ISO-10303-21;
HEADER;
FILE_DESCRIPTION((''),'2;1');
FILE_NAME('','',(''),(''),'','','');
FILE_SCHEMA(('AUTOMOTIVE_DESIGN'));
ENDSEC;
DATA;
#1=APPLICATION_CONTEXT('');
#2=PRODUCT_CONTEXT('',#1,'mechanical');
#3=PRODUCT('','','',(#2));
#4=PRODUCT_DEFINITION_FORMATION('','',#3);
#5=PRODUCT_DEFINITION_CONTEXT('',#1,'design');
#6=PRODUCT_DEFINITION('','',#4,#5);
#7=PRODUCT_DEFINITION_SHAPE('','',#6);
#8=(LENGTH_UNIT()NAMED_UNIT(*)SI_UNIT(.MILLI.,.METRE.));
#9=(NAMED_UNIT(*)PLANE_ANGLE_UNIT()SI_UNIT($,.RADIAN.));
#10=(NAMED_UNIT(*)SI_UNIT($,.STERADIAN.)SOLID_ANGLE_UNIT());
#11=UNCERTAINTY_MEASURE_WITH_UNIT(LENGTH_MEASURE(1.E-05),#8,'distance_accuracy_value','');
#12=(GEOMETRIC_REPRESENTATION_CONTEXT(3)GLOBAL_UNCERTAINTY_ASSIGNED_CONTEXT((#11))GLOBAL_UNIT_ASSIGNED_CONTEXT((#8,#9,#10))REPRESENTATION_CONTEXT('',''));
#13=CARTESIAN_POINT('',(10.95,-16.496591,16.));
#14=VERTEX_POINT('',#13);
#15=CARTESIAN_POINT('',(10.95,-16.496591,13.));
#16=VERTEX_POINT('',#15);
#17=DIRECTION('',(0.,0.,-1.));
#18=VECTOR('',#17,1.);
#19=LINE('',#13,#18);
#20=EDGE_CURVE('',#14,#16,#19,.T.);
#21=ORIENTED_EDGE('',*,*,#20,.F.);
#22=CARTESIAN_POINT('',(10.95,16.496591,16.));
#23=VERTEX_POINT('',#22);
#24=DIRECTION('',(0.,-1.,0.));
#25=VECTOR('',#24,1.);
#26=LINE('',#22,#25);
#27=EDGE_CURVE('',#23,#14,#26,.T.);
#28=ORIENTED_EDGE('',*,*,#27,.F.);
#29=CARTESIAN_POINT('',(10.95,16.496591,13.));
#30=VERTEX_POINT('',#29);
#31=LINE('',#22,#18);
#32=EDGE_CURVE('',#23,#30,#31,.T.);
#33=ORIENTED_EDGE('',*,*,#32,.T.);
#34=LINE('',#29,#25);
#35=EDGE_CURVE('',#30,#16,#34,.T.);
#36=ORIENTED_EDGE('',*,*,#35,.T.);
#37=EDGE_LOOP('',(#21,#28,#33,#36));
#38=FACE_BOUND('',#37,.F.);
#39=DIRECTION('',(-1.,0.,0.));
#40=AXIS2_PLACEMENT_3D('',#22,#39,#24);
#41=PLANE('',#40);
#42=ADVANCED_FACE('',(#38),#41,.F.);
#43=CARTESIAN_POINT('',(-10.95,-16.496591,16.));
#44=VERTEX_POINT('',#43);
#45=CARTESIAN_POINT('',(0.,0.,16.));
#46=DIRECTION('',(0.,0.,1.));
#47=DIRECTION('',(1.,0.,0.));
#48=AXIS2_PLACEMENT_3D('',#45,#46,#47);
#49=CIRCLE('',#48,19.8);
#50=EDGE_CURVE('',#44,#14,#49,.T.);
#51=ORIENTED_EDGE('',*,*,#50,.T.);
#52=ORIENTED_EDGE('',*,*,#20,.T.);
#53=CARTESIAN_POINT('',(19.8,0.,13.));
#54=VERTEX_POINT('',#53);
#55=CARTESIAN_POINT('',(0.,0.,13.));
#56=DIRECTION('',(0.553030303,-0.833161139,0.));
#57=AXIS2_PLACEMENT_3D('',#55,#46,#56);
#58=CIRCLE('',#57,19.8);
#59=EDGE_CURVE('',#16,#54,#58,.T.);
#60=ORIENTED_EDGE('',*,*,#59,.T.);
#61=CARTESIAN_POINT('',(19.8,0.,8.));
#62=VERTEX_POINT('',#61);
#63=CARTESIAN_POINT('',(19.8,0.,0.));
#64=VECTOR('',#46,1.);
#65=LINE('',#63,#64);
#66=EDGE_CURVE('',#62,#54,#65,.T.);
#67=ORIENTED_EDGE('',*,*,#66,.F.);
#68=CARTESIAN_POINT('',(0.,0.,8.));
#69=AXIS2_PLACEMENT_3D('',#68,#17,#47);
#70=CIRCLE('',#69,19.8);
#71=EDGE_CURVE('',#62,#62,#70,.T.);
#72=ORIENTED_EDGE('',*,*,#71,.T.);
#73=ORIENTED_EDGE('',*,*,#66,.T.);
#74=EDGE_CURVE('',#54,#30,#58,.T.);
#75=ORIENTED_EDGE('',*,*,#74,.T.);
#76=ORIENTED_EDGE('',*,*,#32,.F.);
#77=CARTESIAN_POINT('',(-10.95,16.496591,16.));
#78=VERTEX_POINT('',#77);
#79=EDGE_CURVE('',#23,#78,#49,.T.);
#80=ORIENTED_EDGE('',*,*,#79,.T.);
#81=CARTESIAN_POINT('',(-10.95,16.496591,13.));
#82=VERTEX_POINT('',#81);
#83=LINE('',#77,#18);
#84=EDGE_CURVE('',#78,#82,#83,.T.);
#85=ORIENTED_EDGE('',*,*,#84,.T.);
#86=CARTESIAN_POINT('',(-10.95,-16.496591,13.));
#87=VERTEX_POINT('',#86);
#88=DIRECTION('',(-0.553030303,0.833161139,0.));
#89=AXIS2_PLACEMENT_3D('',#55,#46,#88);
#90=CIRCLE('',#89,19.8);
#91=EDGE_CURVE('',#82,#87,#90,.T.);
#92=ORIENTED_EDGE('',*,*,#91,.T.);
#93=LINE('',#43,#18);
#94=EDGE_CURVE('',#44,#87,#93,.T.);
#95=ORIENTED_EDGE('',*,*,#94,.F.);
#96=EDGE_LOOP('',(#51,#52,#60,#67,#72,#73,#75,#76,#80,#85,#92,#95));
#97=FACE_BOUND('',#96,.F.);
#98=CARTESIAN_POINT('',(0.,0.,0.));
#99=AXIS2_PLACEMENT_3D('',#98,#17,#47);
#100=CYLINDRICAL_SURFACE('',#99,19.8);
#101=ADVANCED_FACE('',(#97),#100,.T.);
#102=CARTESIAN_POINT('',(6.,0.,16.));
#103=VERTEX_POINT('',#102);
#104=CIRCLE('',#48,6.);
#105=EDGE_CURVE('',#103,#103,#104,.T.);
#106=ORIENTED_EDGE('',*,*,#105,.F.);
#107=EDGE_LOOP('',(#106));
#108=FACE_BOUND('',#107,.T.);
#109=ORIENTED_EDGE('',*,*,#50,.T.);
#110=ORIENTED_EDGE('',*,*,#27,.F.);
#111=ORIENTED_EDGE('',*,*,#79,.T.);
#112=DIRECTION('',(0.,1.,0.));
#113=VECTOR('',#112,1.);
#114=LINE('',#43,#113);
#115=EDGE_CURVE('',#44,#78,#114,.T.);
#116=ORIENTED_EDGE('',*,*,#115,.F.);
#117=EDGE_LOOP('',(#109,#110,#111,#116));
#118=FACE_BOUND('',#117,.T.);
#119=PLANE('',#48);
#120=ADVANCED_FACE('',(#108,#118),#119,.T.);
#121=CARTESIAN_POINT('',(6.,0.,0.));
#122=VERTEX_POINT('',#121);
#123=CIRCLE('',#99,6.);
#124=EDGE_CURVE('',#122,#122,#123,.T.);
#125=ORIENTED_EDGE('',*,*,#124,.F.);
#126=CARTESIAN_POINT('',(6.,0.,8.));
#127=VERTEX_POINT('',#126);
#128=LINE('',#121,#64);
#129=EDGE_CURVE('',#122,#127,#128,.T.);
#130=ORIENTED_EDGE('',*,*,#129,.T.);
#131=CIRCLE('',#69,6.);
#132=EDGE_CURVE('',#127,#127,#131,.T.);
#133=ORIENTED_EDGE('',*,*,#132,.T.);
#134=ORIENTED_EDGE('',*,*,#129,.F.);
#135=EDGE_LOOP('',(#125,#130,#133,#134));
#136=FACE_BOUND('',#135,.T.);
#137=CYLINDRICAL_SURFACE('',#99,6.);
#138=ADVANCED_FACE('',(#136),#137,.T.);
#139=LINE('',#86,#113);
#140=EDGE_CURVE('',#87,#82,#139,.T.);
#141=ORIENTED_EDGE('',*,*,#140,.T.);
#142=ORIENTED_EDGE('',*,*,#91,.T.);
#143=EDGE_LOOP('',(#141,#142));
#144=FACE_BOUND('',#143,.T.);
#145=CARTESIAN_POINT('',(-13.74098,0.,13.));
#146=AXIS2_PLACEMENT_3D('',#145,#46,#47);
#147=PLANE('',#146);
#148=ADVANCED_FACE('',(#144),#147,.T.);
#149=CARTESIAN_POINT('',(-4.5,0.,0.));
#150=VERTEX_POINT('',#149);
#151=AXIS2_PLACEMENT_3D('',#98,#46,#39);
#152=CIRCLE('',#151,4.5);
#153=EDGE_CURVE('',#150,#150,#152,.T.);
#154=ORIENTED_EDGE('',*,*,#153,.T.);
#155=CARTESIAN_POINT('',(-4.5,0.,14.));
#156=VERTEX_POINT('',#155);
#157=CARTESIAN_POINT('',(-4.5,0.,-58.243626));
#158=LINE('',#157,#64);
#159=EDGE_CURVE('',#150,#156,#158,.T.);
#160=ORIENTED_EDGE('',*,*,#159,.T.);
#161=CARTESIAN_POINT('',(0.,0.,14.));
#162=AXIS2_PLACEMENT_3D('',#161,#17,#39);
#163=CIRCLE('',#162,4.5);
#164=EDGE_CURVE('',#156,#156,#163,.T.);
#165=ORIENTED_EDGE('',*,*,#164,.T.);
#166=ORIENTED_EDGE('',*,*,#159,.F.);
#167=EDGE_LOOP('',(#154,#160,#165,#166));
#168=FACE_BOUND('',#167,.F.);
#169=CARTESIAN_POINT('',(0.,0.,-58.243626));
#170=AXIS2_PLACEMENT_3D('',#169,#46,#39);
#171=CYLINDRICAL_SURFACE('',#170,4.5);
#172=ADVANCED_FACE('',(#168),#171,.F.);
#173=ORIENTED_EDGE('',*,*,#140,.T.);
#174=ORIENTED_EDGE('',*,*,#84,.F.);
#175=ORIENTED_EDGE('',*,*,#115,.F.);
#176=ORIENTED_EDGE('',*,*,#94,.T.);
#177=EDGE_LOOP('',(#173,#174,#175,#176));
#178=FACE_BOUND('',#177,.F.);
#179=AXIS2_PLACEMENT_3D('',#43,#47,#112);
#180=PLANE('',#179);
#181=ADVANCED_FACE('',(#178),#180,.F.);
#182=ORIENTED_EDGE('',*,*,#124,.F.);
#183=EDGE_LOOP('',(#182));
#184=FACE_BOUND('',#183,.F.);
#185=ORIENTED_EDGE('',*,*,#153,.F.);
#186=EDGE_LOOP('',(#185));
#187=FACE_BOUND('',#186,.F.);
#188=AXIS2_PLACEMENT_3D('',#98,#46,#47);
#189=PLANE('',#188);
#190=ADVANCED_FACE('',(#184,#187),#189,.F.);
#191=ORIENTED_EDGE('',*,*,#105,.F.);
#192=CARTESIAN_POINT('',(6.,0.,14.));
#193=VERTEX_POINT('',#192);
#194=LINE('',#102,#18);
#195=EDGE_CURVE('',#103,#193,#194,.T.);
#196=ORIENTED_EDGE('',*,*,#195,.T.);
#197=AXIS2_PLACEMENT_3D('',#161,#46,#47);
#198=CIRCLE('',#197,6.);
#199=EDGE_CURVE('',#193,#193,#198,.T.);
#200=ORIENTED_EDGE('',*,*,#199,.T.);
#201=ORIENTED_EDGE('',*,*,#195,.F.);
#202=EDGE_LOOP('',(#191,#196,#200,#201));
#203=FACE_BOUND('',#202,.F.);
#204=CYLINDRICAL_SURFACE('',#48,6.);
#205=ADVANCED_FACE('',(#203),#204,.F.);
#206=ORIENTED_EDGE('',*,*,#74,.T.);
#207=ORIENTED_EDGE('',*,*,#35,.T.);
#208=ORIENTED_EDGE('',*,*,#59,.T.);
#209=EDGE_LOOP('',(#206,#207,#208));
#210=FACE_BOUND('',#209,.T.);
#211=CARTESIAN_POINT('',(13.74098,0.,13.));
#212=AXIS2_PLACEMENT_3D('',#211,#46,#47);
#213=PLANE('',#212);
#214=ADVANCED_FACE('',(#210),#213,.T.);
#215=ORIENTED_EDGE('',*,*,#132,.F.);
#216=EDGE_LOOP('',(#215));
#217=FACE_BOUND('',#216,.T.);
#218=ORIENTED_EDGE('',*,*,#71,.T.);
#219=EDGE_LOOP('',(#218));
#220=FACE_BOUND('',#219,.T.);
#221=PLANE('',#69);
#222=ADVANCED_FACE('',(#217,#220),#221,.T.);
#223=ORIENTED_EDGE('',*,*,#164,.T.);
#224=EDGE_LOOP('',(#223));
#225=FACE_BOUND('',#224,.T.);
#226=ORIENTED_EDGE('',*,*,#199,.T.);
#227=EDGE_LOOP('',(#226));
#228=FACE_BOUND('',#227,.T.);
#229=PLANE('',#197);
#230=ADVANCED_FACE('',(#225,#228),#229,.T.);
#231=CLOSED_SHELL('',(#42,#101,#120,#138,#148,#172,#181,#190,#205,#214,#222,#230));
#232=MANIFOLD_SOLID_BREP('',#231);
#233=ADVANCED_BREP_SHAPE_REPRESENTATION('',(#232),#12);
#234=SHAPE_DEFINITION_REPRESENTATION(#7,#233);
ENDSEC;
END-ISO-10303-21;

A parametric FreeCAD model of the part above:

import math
import FreeCAD as App
import Part
import Sketcher

doc = App.newDocument("Part")
body = doc.addObject("PartDesign::Body", "Body")

# Sketch on XY plane
sketch1 = doc.addObject("Sketcher::SketchObject", "Sketch")
body.addObject(sketch1)
sketch1.AttachmentSupport = (doc.XY_Plane, [""])
sketch1.MapMode = "FlatFace"
sketch1.addGeometry(Part.Circle(App.Vector(0, 0, 0), App.Vector(0, 0, 1), 19.8), False)
sketch1.addConstraint([
    Sketcher.Constraint("Coincident", 0, 3, -1, 1),
    Sketcher.Constraint("Diameter", 0, 39.6),
])
pad1 = doc.addObject("PartDesign::Pad", "Pad")
body.addObject(pad1)
pad1.Profile = sketch1
pad1.Length = 16

# Sketch on XY plane
sketch2 = doc.addObject("Sketcher::SketchObject", "Sketch001")
body.addObject(sketch2)
sketch2.AttachmentSupport = (doc.XY_Plane, [""])
sketch2.MapMode = "FlatFace"
sketch2.AttachmentOffset = App.Placement(App.Vector(0, 0, 16), App.Rotation())
sketch2.addGeometry([
    Part.LineSegment(App.Vector(-10.95, -16.496591, 0), App.Vector(-10.95, 16.496591, 0)),
    Part.ArcOfCircle(Part.Circle(App.Vector(0, 0, 0), App.Vector(0, 0, 1), 19.8), math.radians(123.575154), math.radians(236.424846)),
    Part.LineSegment(App.Vector(10.95, 16.496591, 0), App.Vector(10.95, -16.496591, 0)),
    Part.ArcOfCircle(Part.Circle(App.Vector(0, 0, 0), App.Vector(0, 0, 1), 19.8), math.radians(-56.424846), math.radians(56.424846)),
], False)
sketch2.addConstraint([
    Sketcher.Constraint("Coincident", 0, 1, 1, 2),
    Sketcher.Constraint("Coincident", 1, 1, 0, 2),
    Sketcher.Constraint("Coincident", 2, 1, 3, 2),
    Sketcher.Constraint("Coincident", 3, 1, 2, 2),
    Sketcher.Constraint("Vertical", 0),
    Sketcher.Constraint("Vertical", 2),
    Sketcher.Constraint("Coincident", 1, 3, -1, 1),
    Sketcher.Constraint("Coincident", 3, 3, -1, 1),
    Sketcher.Constraint("Equal", 1, 3),
    Sketcher.Constraint("Horizontal", 1, 1, 2, 1),
    Sketcher.Constraint("Radius", 1, 19.8),
    Sketcher.Constraint("DistanceX", 1, 1, 2, 1, 21.9),
])
pocket1 = doc.addObject("PartDesign::Pocket", "Pocket")
body.addObject(pocket1)
pocket1.Profile = sketch2
pocket1.Length = 3

# Sketch on XY plane
sketch3 = doc.addObject("Sketcher::SketchObject", "Sketch002")
body.addObject(sketch3)
sketch3.AttachmentSupport = (doc.XY_Plane, [""])
sketch3.MapMode = "FlatFace"
sketch3.addGeometry([
    Part.Circle(App.Vector(0, 0, 0), App.Vector(0, 0, 1), 19.8),
    Part.Circle(App.Vector(0, 0, 0), App.Vector(0, 0, 1), 6),
], False)
sketch3.addConstraint([
    Sketcher.Constraint("Coincident", 0, 3, -1, 1),
    Sketcher.Constraint("Coincident", 1, 3, -1, 1),
    Sketcher.Constraint("Diameter", 1, 12.0),
    Sketcher.Constraint("Diameter", 0, 39.6),
])
pocket2 = doc.addObject("PartDesign::Pocket", "Pocket001")
body.addObject(pocket2)
pocket2.Profile = sketch3
pocket2.Length = 8
pocket2.Reversed = True

# Sketch on XY plane
sketch4 = doc.addObject("Sketcher::SketchObject", "Sketch003")
body.addObject(sketch4)
sketch4.AttachmentSupport = (doc.XY_Plane, [""])
sketch4.MapMode = "FlatFace"
sketch4.addGeometry(Part.Circle(App.Vector(0, 0, 0), App.Vector(0, 0, 1), 4.5), False)
sketch4.addConstraint([
    Sketcher.Constraint("Coincident", 0, 3, -1, 1),
    Sketcher.Constraint("Diameter", 0, 9.0),
])
doc.recompute()
hole = doc.addObject("PartDesign::Hole", "Hole")
body.addObject(hole)
hole.Profile = sketch4
hole.ThreadType = "None"
hole.Diameter = 9
hole.DepthType = "ThroughAll"
hole.Reversed = True

# Sketch on XY plane
sketch5 = doc.addObject("Sketcher::SketchObject", "Sketch004")
body.addObject(sketch5)
sketch5.AttachmentSupport = (doc.XY_Plane, [""])
sketch5.MapMode = "FlatFace"
sketch5.AttachmentOffset = App.Placement(App.Vector(0, 0, 16), App.Rotation())
sketch5.addGeometry([
    Part.Circle(App.Vector(0, 0, 0), App.Vector(0, 0, 1), 6),
    Part.Circle(App.Vector(0, 0, 0), App.Vector(0, 0, 1), 4.5),
], False)
sketch5.addConstraint([
    Sketcher.Constraint("Coincident", 0, 3, -1, 1),
    Sketcher.Constraint("Coincident", 1, 3, -1, 1),
    Sketcher.Constraint("Diameter", 0, 12.0),
    Sketcher.Constraint("Diameter", 1, 9.0),
])
pocket3 = doc.addObject("PartDesign::Pocket", "Pocket002")
body.addObject(pocket3)
pocket3.Profile = sketch5
pocket3.Length = 2

doc.recompute()
